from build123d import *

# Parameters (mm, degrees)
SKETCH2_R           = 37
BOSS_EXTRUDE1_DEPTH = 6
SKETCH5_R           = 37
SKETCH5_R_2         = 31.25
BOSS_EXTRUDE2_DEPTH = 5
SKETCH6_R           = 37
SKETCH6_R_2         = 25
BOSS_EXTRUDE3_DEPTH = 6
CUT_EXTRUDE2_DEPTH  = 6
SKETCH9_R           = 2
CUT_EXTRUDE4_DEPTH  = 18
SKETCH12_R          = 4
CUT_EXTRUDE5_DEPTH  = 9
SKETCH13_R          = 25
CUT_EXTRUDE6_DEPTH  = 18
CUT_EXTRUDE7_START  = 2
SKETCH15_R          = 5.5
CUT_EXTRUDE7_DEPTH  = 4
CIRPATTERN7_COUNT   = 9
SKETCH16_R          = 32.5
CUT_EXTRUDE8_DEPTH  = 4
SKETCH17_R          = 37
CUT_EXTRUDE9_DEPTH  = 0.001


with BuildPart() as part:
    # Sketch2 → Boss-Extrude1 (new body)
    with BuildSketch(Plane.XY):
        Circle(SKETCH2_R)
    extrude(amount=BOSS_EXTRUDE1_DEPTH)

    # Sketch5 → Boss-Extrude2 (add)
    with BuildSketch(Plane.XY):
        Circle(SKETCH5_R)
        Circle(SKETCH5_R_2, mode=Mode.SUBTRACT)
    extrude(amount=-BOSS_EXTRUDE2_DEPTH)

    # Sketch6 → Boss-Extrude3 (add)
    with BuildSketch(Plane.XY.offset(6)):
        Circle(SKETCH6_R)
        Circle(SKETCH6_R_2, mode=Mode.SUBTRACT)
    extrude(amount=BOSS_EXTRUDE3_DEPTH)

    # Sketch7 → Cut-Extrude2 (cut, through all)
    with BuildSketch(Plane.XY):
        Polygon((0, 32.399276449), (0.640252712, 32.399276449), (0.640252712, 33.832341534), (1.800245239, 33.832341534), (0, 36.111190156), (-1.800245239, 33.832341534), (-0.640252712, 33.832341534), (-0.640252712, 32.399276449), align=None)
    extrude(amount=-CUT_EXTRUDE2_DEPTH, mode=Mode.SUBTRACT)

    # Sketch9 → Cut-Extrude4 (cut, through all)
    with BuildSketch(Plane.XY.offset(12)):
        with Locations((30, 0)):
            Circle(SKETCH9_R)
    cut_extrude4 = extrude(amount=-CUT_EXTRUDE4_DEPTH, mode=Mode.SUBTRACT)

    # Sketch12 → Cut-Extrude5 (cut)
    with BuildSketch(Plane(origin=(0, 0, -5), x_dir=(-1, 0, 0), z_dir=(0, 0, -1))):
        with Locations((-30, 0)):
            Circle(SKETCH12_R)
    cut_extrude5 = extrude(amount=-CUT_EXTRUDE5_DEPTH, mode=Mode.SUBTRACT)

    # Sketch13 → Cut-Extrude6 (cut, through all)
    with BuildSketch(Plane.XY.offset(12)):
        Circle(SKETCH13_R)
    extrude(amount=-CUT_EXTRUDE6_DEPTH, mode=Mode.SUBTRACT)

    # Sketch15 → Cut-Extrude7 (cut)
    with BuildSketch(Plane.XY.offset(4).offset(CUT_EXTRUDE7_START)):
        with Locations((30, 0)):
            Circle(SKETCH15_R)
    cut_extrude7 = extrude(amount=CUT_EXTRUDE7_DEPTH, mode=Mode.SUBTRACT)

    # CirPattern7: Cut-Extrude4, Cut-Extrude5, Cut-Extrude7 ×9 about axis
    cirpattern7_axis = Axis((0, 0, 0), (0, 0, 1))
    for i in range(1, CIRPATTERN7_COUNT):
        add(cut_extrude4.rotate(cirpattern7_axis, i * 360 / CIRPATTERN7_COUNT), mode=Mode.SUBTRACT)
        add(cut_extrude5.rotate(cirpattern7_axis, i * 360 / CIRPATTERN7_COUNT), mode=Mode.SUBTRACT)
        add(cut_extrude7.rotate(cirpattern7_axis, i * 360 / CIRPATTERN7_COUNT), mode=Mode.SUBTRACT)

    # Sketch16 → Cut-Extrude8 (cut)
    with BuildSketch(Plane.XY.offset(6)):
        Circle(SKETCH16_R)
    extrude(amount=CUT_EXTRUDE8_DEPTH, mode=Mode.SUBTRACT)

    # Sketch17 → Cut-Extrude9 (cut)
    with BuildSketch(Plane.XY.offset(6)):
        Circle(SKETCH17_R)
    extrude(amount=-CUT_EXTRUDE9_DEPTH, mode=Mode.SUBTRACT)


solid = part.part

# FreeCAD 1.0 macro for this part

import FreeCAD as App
import Part
import Sketcher
from FreeCAD import Vector
Q = App.Units.Quantity

doc = App.newDocument("Part")
body = doc.addObject("PartDesign::Body", "Body")
body.AllowCompound = True

sketch1 = body.newObject("Sketcher::SketchObject", "Sketch")
sketch1.AttachmentSupport = (doc.getObject("XY_Plane"), [""])
sketch1.MapMode = "FlatFace"
sketch1.addGeometry(Part.Circle(Vector(0, 0, 0), Vector(0, 0, 1), 37), False)
sketch1.addConstraint(Sketcher.Constraint("Coincident", 0, 3, -1, 1))
sketch1.addConstraint(Sketcher.Constraint("Diameter", 0, Q("74 mm")))
pad1 = body.newObject("PartDesign::Pad", "Pad")
pad1.Profile = sketch1
pad1.Length = 6

sketch2 = body.newObject("Sketcher::SketchObject", "Sketch001")
sketch2.AttachmentSupport = (doc.getObject("XY_Plane"), [""])
sketch2.MapMode = "FlatFace"
sketch2.addGeometry(Part.Circle(Vector(0, 0, 0), Vector(0, 0, 1), 37), False)
sketch2.addGeometry(Part.Circle(Vector(0, 0, 0), Vector(0, 0, 1), 31), False)
sketch2.addConstraint(Sketcher.Constraint("Coincident", 0, 3, -1, 1))
sketch2.addConstraint(Sketcher.Constraint("Coincident", 1, 3, -1, 1))
sketch2.addConstraint(Sketcher.Constraint("Diameter", 0, Q("74 mm")))
sketch2.addConstraint(Sketcher.Constraint("Diameter", 1, Q("62.5 mm")))
pad2 = body.newObject("PartDesign::Pad", "Pad001")
pad2.Profile = sketch2
pad2.Length = 5
pad2.Reversed = True

sketch3 = body.newObject("Sketcher::SketchObject", "Sketch002")
sketch3.AttachmentSupport = (doc.getObject("XY_Plane"), [""])
sketch3.MapMode = "FlatFace"
sketch3.AttachmentOffset = App.Placement(Vector(0, 0, 6), App.Rotation())
sketch3.addGeometry(Part.Circle(Vector(0, 0, 0), Vector(0, 0, 1), 37), False)
sketch3.addGeometry(Part.Circle(Vector(0, 0, 0), Vector(0, 0, 1), 25), False)
sketch3.addConstraint(Sketcher.Constraint("Coincident", 0, 3, -1, 1))
sketch3.addConstraint(Sketcher.Constraint("Coincident", 1, 3, -1, 1))
sketch3.addConstraint(Sketcher.Constraint("Diameter", 0, Q("74 mm")))
sketch3.addConstraint(Sketcher.Constraint("Diameter", 1, Q("50 mm")))
pad3 = body.newObject("PartDesign::Pad", "Pad002")
pad3.Profile = sketch3
pad3.Length = 6

sketch4 = body.newObject("Sketcher::SketchObject", "Sketch003")
sketch4.AttachmentSupport = (doc.getObject("XY_Plane"), [""])
sketch4.MapMode = "FlatFace"
sketch4.addGeometry(Part.LineSegment(Vector(0.6, 32.4, 0), Vector(0.6, 33.8, 0)), False)
sketch4.addGeometry(Part.LineSegment(Vector(0.6, 33.8, 0), Vector(1.8, 33.8, 0)), False)
sketch4.addGeometry(Part.LineSegment(Vector(1.8, 33.8, 0), Vector(0, 36.1, 0)), False)
sketch4.addGeometry(Part.LineSegment(Vector(0, 36.1, 0), Vector(-1.8, 33.8, 0)), False)
sketch4.addGeometry(Part.LineSegment(Vector(-1.8, 33.8, 0), Vector(-0.6, 33.8, 0)), False)
sketch4.addGeometry(Part.LineSegment(Vector(-0.6, 33.8, 0), Vector(-0.6, 32.4, 0)), False)
sketch4.addGeometry(Part.LineSegment(Vector(-0.6, 32.4, 0), Vector(0.6, 32.4, 0)), False)
sketch4.addConstraint(Sketcher.Constraint("Coincident", 0, 2, 1, 1))
sketch4.addConstraint(Sketcher.Constraint("Coincident", 1, 2, 2, 1))
sketch4.addConstraint(Sketcher.Constraint("Coincident", 2, 2, 3, 1))
sketch4.addConstraint(Sketcher.Constraint("Coincident", 3, 2, 4, 1))
sketch4.addConstraint(Sketcher.Constraint("Coincident", 4, 2, 5, 1))
sketch4.addConstraint(Sketcher.Constraint("Coincident", 5, 2, 6, 1))
sketch4.addConstraint(Sketcher.Constraint("Coincident", 6, 2, 0, 1))
sketch4.addConstraint(Sketcher.Constraint("Vertical", 0))
sketch4.addConstraint(Sketcher.Constraint("Horizontal", 1))
sketch4.addConstraint(Sketcher.Constraint("Horizontal", 4))
sketch4.addConstraint(Sketcher.Constraint("Vertical", 5))
sketch4.addConstraint(Sketcher.Constraint("Horizontal", 6))
sketch4.addConstraint(Sketcher.Constraint("Symmetric", 1, 2, 3, 2, -2))
sketch4.addConstraint(Sketcher.Constraint("PointOnObject", 2, 2, -2))
sketch4.addConstraint(Sketcher.Constraint("Equal", 1, 4))
sketch4.addConstraint(Sketcher.Constraint("Distance", 2, Q("2.904141 mm")))
sketch4.addConstraint(Sketcher.Constraint("DistanceX", 1, 1, 1, 2, Q("1.159993 mm")))
sketch4.addConstraint(Sketcher.Constraint("DistanceX", 6, 1, 6, 2, Q("1.280505 mm")))
sketch4.addConstraint(Sketcher.Constraint("DistanceY", 0, 1, 0, 2, Q("1.433065 mm")))
sketch4.addConstraint(Sketcher.Constraint("DistanceY", -1, 1, 0, 2, Q("33.832342 mm")))
pocket1 = body.newObject("PartDesign::Pocket", "Pocket")
pocket1.Profile = sketch4
pocket1.Type = "ThroughAll"

sketch5 = body.newObject("Sketcher::SketchObject", "Sketch004")
sketch5.AttachmentSupport = (doc.getObject("XY_Plane"), [""])
sketch5.MapMode = "FlatFace"
sketch5.AttachmentOffset = App.Placement(Vector(0, 0, 12), App.Rotation())
sketch5.addGeometry(Part.Circle(Vector(30, 0, 0), Vector(0, 0, 1), 2), False)
sketch5.addConstraint(Sketcher.Constraint("PointOnObject", 0, 3, -1))
sketch5.addConstraint(Sketcher.Constraint("Diameter", 0, Q("4 mm")))
sketch5.addConstraint(Sketcher.Constraint("DistanceX", -1, 1, 0, 3, Q("30 mm")))
pocket2 = body.newObject("PartDesign::Pocket", "Pocket001")
pocket2.Profile = sketch5
pocket2.Type = "ThroughAll"

sketch6 = body.newObject("Sketcher::SketchObject", "Sketch005")
sketch6.AttachmentSupport = (doc.getObject("XY_Plane"), [""])
sketch6.MapMode = "FlatFace"
sketch6.AttachmentOffset = App.Placement(Vector(0, 0, -5), App.Rotation())
sketch6.addGeometry(Part.Circle(Vector(30, 0, 0), Vector(0, 0, 1), 4), False)
sketch6.addConstraint(Sketcher.Constraint("PointOnObject", 0, 3, -1))
sketch6.addConstraint(Sketcher.Constraint("Diameter", 0, Q("8 mm")))
sketch6.addConstraint(Sketcher.Constraint("DistanceX", -1, 1, 0, 3, Q("30 mm")))
pocket3 = body.newObject("PartDesign::Pocket", "Pocket002")
pocket3.Profile = sketch6
pocket3.Length = 9
pocket3.Reversed = True

sketch7 = body.newObject("Sketcher::SketchObject", "Sketch006")
sketch7.AttachmentSupport = (doc.getObject("XY_Plane"), [""])
sketch7.MapMode = "FlatFace"
sketch7.AttachmentOffset = App.Placement(Vector(0, 0, 12), App.Rotation())
sketch7.addGeometry(Part.Circle(Vector(0, 0, 0), Vector(0, 0, 1), 25), False)
sketch7.addConstraint(Sketcher.Constraint("Coincident", 0, 3, -1, 1))
sketch7.addConstraint(Sketcher.Constraint("Diameter", 0, Q("50 mm")))
pocket4 = body.newObject("PartDesign::Pocket", "Pocket003")
pocket4.Profile = sketch7
pocket4.Type = "ThroughAll"

sketch8 = body.newObject("Sketcher::SketchObject", "Sketch007")
sketch8.AttachmentSupport = (doc.getObject("XY_Plane"), [""])
sketch8.MapMode = "FlatFace"
sketch8.AttachmentOffset = App.Placement(Vector(0, 0, 6), App.Rotation())
sketch8.addGeometry(Part.Circle(Vector(30, 0, 0), Vector(0, 0, 1), 6), False)
sketch8.addConstraint(Sketcher.Constraint("PointOnObject", 0, 3, -1))
sketch8.addConstraint(Sketcher.Constraint("Diameter", 0, Q("11 mm")))
sketch8.addConstraint(Sketcher.Constraint("DistanceX", -1, 1, 0, 3, Q("30 mm")))
pocket5 = body.newObject("PartDesign::Pocket", "Pocket004")
pocket5.Profile = sketch8
pocket5.Length = 4
pocket5.Reversed = True
doc.recompute()

polarpattern = body.newObject("PartDesign::PolarPattern", "PolarPattern")
polarpattern.Originals = [pocket2, pocket3, pocket5]
polarpattern.Axis = (doc.getObject("Z_Axis"), [""])
polarpattern.Angle = 360
polarpattern.Occurrences = 9
body.Tip = polarpattern

sketch9 = body.newObject("Sketcher::SketchObject", "Sketch008")
sketch9.AttachmentSupport = (doc.getObject("XY_Plane"), [""])
sketch9.MapMode = "FlatFace"
sketch9.AttachmentOffset = App.Placement(Vector(0, 0, 6), App.Rotation())
sketch9.addGeometry(Part.Circle(Vector(0, 0, 0), Vector(0, 0, 1), 32), False)
sketch9.addConstraint(Sketcher.Constraint("Coincident", 0, 3, -1, 1))
sketch9.addConstraint(Sketcher.Constraint("Diameter", 0, Q("65 mm")))
pocket6 = body.newObject("PartDesign::Pocket", "Pocket005")
pocket6.Profile = sketch9
pocket6.Length = 4
pocket6.Reversed = True

sketch10 = body.newObject("Sketcher::SketchObject", "Sketch009")
sketch10.AttachmentSupport = (doc.getObject("XY_Plane"), [""])
sketch10.MapMode = "FlatFace"
sketch10.AttachmentOffset = App.Placement(Vector(0, 0, 6), App.Rotation())
sketch10.addGeometry(Part.Circle(Vector(0, 0, 0), Vector(0, 0, 1), 37), False)
sketch10.addConstraint(Sketcher.Constraint("Coincident", 0, 3, -1, 1))
sketch10.addConstraint(Sketcher.Constraint("Diameter", 0, Q("74 mm")))
pocket7 = body.newObject("PartDesign::Pocket", "Pocket006")
pocket7.Profile = sketch10
pocket7.Length = 0.001

doc.recompute()
